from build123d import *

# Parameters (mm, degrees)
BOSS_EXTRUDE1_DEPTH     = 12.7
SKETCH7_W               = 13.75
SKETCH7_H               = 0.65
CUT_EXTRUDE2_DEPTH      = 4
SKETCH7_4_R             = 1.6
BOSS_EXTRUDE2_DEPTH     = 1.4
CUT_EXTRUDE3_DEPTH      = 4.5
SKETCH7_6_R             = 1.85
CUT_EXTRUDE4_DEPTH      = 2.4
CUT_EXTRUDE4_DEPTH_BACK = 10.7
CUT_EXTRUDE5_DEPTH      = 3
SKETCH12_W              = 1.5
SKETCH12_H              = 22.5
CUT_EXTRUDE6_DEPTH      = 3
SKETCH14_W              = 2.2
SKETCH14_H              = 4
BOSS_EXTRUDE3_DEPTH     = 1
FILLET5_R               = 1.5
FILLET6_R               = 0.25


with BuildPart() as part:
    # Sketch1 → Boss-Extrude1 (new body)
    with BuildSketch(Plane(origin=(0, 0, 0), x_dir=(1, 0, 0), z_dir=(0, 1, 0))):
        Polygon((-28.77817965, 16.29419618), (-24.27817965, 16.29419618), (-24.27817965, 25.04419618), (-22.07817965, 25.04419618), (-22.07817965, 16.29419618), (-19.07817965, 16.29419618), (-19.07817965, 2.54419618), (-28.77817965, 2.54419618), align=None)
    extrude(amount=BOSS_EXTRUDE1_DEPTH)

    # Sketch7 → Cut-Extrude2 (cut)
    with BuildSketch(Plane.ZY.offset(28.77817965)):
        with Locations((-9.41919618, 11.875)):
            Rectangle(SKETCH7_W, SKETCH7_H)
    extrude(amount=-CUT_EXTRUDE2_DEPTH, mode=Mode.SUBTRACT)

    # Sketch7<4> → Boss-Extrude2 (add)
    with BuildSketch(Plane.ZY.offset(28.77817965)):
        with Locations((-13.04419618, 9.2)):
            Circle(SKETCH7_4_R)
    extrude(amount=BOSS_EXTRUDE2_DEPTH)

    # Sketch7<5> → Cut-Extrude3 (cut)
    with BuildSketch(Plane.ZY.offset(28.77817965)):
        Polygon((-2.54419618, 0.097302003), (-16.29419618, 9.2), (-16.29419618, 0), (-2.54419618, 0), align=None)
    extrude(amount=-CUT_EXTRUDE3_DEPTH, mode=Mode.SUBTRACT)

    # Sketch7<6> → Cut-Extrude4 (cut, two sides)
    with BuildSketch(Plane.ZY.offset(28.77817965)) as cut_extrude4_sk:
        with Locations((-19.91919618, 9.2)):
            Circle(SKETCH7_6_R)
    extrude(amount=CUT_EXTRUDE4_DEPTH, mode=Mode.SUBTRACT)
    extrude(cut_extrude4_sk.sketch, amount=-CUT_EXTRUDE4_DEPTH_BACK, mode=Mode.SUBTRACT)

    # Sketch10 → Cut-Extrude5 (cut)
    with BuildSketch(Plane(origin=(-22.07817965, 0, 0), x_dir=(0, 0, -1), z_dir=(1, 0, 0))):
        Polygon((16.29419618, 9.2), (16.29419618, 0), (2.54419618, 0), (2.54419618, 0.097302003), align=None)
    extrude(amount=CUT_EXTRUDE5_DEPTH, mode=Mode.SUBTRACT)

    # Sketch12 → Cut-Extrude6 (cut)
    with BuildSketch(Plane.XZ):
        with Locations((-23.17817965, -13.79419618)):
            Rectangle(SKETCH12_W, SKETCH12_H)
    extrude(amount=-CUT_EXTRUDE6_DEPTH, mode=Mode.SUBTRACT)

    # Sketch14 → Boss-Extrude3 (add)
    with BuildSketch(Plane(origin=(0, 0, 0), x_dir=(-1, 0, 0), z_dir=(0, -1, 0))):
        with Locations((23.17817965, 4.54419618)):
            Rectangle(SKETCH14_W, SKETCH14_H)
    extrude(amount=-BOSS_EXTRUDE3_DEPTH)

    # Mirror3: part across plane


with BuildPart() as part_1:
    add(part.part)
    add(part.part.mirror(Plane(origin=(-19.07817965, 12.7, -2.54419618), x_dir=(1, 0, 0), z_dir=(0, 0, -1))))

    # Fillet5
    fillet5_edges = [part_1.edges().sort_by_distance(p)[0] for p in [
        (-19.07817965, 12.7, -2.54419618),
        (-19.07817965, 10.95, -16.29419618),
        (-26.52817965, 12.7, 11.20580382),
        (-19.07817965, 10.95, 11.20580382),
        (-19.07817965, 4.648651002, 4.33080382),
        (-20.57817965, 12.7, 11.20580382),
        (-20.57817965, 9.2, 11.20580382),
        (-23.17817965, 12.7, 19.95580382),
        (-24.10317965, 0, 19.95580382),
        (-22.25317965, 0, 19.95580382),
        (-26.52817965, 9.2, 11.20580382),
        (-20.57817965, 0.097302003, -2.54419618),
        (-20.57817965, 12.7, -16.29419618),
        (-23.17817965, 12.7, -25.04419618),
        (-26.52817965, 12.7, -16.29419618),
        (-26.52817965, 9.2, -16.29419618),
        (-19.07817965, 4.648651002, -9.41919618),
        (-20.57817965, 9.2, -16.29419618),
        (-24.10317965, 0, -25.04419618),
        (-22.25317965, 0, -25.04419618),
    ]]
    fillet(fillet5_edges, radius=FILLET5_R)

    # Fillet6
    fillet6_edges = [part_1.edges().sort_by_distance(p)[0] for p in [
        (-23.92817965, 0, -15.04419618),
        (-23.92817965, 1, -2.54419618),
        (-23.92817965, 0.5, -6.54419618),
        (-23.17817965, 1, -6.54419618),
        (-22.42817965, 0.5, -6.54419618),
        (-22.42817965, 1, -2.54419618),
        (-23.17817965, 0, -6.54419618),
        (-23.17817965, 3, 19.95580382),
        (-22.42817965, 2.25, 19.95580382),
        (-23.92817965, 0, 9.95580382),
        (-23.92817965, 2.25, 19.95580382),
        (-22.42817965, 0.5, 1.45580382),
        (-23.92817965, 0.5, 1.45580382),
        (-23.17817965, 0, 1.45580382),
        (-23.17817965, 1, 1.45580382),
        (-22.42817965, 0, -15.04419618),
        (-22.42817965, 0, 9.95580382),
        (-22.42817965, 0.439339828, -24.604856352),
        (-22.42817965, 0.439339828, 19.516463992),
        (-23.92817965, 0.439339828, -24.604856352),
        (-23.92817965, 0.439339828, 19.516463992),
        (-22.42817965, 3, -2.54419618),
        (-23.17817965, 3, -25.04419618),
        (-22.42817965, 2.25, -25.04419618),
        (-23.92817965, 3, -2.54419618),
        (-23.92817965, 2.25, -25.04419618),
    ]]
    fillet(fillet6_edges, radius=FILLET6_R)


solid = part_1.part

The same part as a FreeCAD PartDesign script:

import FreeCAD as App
import Part
import Sketcher
Q = App.Units.Quantity


def edges_at(feature, points):
    """Names of the edges that pass closest to the given points."""
    edges = feature.Shape.Edges
    near = lambda p: min(range(len(edges)), key=lambda i: edges[i].distToShape(Part.Vertex(*p))[0])
    return sorted({f"Edge{near(p) + 1}" for p in points})

doc = App.newDocument("Part")
body = doc.addObject("PartDesign::Body", "Body")

sketch1 = doc.addObject("Sketcher::SketchObject", "Sketch")
body.addObject(sketch1)
sketch1.AttachmentSupport = (doc.XZ_Plane, [""])
sketch1.MapMode = "FlatFace"
sketch1.addGeometry([
    Part.LineSegment(App.Vector(-24.3, -16.3, 0), App.Vector(-28.8, -16.3, 0)),
    Part.LineSegment(App.Vector(-28.8, -16.3, 0), App.Vector(-28.8, -2.5, 0)),
    Part.LineSegment(App.Vector(-28.8, -2.5, 0), App.Vector(-19.1, -2.5, 0)),
    Part.LineSegment(App.Vector(-19.1, -2.5, 0), App.Vector(-19.1, -16.3, 0)),
    Part.LineSegment(App.Vector(-19.1, -16.3, 0), App.Vector(-22.1, -16.3, 0)),
    Part.LineSegment(App.Vector(-22.1, -16.3, 0), App.Vector(-22.1, -25, 0)),
    Part.LineSegment(App.Vector(-22.1, -25, 0), App.Vector(-24.3, -25, 0)),
    Part.LineSegment(App.Vector(-24.3, -25, 0), App.Vector(-24.3, -16.3, 0)),
], False)
sketch1.addConstraint([
    Sketcher.Constraint("Coincident", 0, 2, 1, 1),
    Sketcher.Constraint("Coincident", 1, 2, 2, 1),
    Sketcher.Constraint("Coincident", 2, 2, 3, 1),
    Sketcher.Constraint("Coincident", 3, 2, 4, 1),
    Sketcher.Constraint("Coincident", 4, 2, 5, 1),
    Sketcher.Constraint("Coincident", 5, 2, 6, 1),
    Sketcher.Constraint("Coincident", 6, 2, 7, 1),
    Sketcher.Constraint("Coincident", 7, 2, 0, 1),
    Sketcher.Constraint("Horizontal", 0),
    Sketcher.Constraint("Vertical", 1),
    Sketcher.Constraint("Horizontal", 2),
    Sketcher.Constraint("Vertical", 3),
    Sketcher.Constraint("Horizontal", 4),
    Sketcher.Constraint("Vertical", 5),
    Sketcher.Constraint("Horizontal", 6),
    Sketcher.Constraint("Vertical", 7),
    Sketcher.Constraint("Horizontal", 0, 2, 3, 2),
    Sketcher.Constraint("DistanceX", 4, 2, 4, 1, Q("3 mm")),
    Sketcher.Constraint("DistanceX", 0, 2, 0, 1, Q("4.5 mm")),
    Sketcher.Constraint("DistanceX", 2, 1, 2, 2, Q("9.7 mm")),
    Sketcher.Constraint("DistanceY", 1, 1, 1, 2, Q("13.75 mm")),
    Sketcher.Constraint("DistanceY", 5, 2, 5, 1, Q("8.75 mm")),
    Sketcher.Constraint("DistanceX", 0, 2, -1, 1, Q("28.77818 mm")),
    Sketcher.Constraint("DistanceY", 0, 2, -1, 1, Q("16.294196 mm")),
])
pad1 = doc.addObject("PartDesign::Pad", "Pad")
body.addObject(pad1)
pad1.Profile = sketch1
pad1.Length = 12.7
pad1.Reversed = True

sketch2 = doc.addObject("Sketcher::SketchObject", "Sketch001")
body.addObject(sketch2)
sketch2.AttachmentSupport = (doc.YZ_Plane, [""])
sketch2.MapMode = "FlatFace"
sketch2.AttachmentOffset = App.Placement(App.Vector(0, 0, -28.77818), App.Rotation())
sketch2.addGeometry([
    Part.LineSegment(App.Vector(12.2, -16.3, 0), App.Vector(11.6, -16.3, 0)),
    Part.LineSegment(App.Vector(11.6, -16.3, 0), App.Vector(11.6, -2.5, 0)),
    Part.LineSegment(App.Vector(11.6, -2.5, 0), App.Vector(12.2, -2.5, 0)),
    Part.LineSegment(App.Vector(12.2, -2.5, 0), App.Vector(12.2, -16.3, 0)),
], False)
sketch2.addConstraint([
    Sketcher.Constraint("Coincident", 0, 2, 1, 1),
    Sketcher.Constraint("Coincident", 1, 2, 2, 1),
    Sketcher.Constraint("Coincident", 2, 2, 3, 1),
    Sketcher.Constraint("Coincident", 3, 2, 0, 1),
    Sketcher.Constraint("Horizontal", 0),
    Sketcher.Constraint("Vertical", 1),
    Sketcher.Constraint("Horizontal", 2),
    Sketcher.Constraint("Vertical", 3),
    Sketcher.Constraint("DistanceX", 0, 2, 0, 1, Q("0.65 mm")),
    Sketcher.Constraint("DistanceY", 1, 1, 1, 2, Q("13.75 mm")),
    Sketcher.Constraint("DistanceX", -1, 1, 2, 2, Q("12.2 mm")),
    Sketcher.Constraint("DistanceY", 0, 2, -1, 1, Q("16.294196 mm")),
])
pocket1 = doc.addObject("PartDesign::Pocket", "Pocket")
body.addObject(pocket1)
pocket1.Profile = sketch2
pocket1.Length = 4
pocket1.Reversed = True

sketch3 = doc.addObject("Sketcher::SketchObject", "Sketch002")
body.addObject(sketch3)
sketch3.AttachmentSupport = (doc.YZ_Plane, [""])
sketch3.MapMode = "FlatFace"
sketch3.AttachmentOffset = App.Placement(App.Vector(0, 0, -28.77818), App.Rotation())
sketch3.addGeometry(Part.Circle(App.Vector(9.2, -13, 0), App.Vector(0, 0, 1), 1.6), False)
sketch3.addConstraint([
    Sketcher.Constraint("Diameter", 0, Q("3.2 mm")),
    Sketcher.Constraint("DistanceX", -1, 1, 0, 3, Q("9.2 mm")),
    Sketcher.Constraint("DistanceY", 0, 3, -1, 1, Q("13.044196 mm")),
])
pad2 = doc.addObject("PartDesign::Pad", "Pad001")
body.addObject(pad2)
pad2.Profile = sketch3
pad2.Length = 1.4
pad2.Reversed = True

sketch4 = doc.addObject("Sketcher::SketchObject", "Sketch003")
body.addObject(sketch4)
sketch4.AttachmentSupport = (doc.YZ_Plane, [""])
sketch4.MapMode = "FlatFace"
sketch4.AttachmentOffset = App.Placement(App.Vector(0, 0, -28.77818), App.Rotation())
sketch4.addGeometry([
    Part.LineSegment(App.Vector(0.1, -2.54, 0), App.Vector(9.2, -16.29, 0)),
    Part.LineSegment(App.Vector(9.2, -16.29, 0), App.Vector(0, -16.29, 0)),
    Part.LineSegment(App.Vector(0, -16.29, 0), App.Vector(0, -2.54, 0)),
    Part.LineSegment(App.Vector(0, -2.54, 0), App.Vector(0.1, -2.54, 0)),
], False)
sketch4.addConstraint([
    Sketcher.Constraint("Coincident", 0, 2, 1, 1),
    Sketcher.Constraint("Coincident", 1, 2, 2, 1),
    Sketcher.Constraint("Coincident", 2, 2, 3, 1),
    Sketcher.Constraint("Coincident", 3, 2, 0, 1),
    Sketcher.Constraint("Horizontal", 1),
    Sketcher.Constraint("Vertical", 2),
    Sketcher.Constraint("Horizontal", 3),
    Sketcher.Constraint("PointOnObject", 1, 2, -2),
    Sketcher.Constraint("DistanceX", 1, 2, 1, 1, Q("9.2 mm")),
    Sketcher.Constraint("DistanceY", 2, 1, 2, 2, Q("13.75 mm")),
    Sketcher.Constraint("DistanceX", 3, 1, 3, 2, Q("0.097302 mm")),
    Sketcher.Constraint("DistanceY", 0, 2, -1, 1, Q("16.294196 mm")),
])
pocket2 = doc.addObject("PartDesign::Pocket", "Pocket001")
body.addObject(pocket2)
pocket2.Profile = sketch4
pocket2.Length = 4.5
pocket2.Reversed = True

sketch5 = doc.addObject("Sketcher::SketchObject", "Sketch004")
body.addObject(sketch5)
sketch5.AttachmentSupport = (doc.YZ_Plane, [""])
sketch5.MapMode = "FlatFace"
sketch5.AttachmentOffset = App.Placement(App.Vector(0, 0, -28.77818), App.Rotation())
sketch5.addGeometry(Part.Circle(App.Vector(9.2, -19.9, 0), App.Vector(0, 0, 1), 1.9), False)
sketch5.addConstraint([
    Sketcher.Constraint("Diameter", 0, Q("3.7 mm")),
    Sketcher.Constraint("DistanceX", -1, 1, 0, 3, Q("9.2 mm")),
    Sketcher.Constraint("DistanceY", 0, 3, -1, 1, Q("19.919196 mm")),
])
pocket3 = doc.addObject("PartDesign::Pocket", "Pocket002")
body.addObject(pocket3)
pocket3.Profile = sketch5
pocket3.Type = "ThroughAll"
pocket3.Midplane = True

sketch6 = doc.addObject("Sketcher::SketchObject", "Sketch005")
body.addObject(sketch6)
sketch6.AttachmentSupport = (doc.YZ_Plane, [""])
sketch6.MapMode = "FlatFace"
sketch6.AttachmentOffset = App.Placement(App.Vector(0, 0, -22.07818), App.Rotation())
sketch6.addGeometry([
    Part.LineSegment(App.Vector(0, -16.29, 0), App.Vector(9.2, -16.29, 0)),
    Part.LineSegment(App.Vector(9.2, -16.29, 0), App.Vector(0.1, -2.54, 0)),
    Part.LineSegment(App.Vector(0.1, -2.54, 0), App.Vector(0, -2.54, 0)),
    Part.LineSegment(App.Vector(0, -2.54, 0), App.Vector(0, -16.29, 0)),
], False)
sketch6.addConstraint([
    Sketcher.Constraint("Coincident", 0, 2, 1, 1),
    Sketcher.Constraint("Coincident", 1, 2, 2, 1),
    Sketcher.Constraint("Coincident", 2, 2, 3, 1),
    Sketcher.Constraint("Coincident", 3, 2, 0, 1),
    Sketcher.Constraint("Horizontal", 0),
    Sketcher.Constraint("Horizontal", 2),
    Sketcher.Constraint("Vertical", 3),
    Sketcher.Constraint("PointOnObject", 2, 2, -2),
    Sketcher.Constraint("DistanceX", 0, 1, 0, 2, Q("9.2 mm")),
    Sketcher.Constraint("DistanceY", 3, 2, 3, 1, Q("13.75 mm")),
    Sketcher.Constraint("DistanceX", 2, 2, 2, 1, Q("0.097302 mm")),
    Sketcher.Constraint("DistanceY", 0, 2, -1, 1, Q("16.294196 mm")),
])
pocket4 = doc.addObject("PartDesign::Pocket", "Pocket003")
body.addObject(pocket4)
pocket4.Profile = sketch6
pocket4.Length = 3
pocket4.Reversed = True

sketch7 = doc.addObject("Sketcher::SketchObject", "Sketch006")
body.addObject(sketch7)
sketch7.AttachmentSupport = (doc.XZ_Plane, [""])
sketch7.MapMode = "FlatFace"
sketch7.addGeometry([
    Part.LineSegment(App.Vector(-23.9, -2.5, 0), App.Vector(-23.9, -25, 0)),
    Part.LineSegment(App.Vector(-23.9, -25, 0), App.Vector(-22.4, -25, 0)),
    Part.LineSegment(App.Vector(-22.4, -25, 0), App.Vector(-22.4, -2.5, 0)),
    Part.LineSegment(App.Vector(-22.4, -2.5, 0), App.Vector(-23.9, -2.5, 0)),
], False)
sketch7.addConstraint([
    Sketcher.Constraint("Coincident", 0, 2, 1, 1),
    Sketcher.Constraint("Coincident", 1, 2, 2, 1),
    Sketcher.Constraint("Coincident", 2, 2, 3, 1),
    Sketcher.Constraint("Coincident", 3, 2, 0, 1),
    Sketcher.Constraint("Vertical", 0),
    Sketcher.Constraint("Horizontal", 1),
    Sketcher.Constraint("Vertical", 2),
    Sketcher.Constraint("Horizontal", 3),
    Sketcher.Constraint("DistanceX", 1, 1, 1, 2, Q("1.5 mm")),
    Sketcher.Constraint("DistanceY", 0, 2, 0, 1, Q("22.5 mm")),
    Sketcher.Constraint("DistanceX", 0, 2, -1, 1, Q("23.92818 mm")),
    Sketcher.Constraint("DistanceY", 0, 2, -1, 1, Q("25.044196 mm")),
])
pocket5 = doc.addObject("PartDesign::Pocket", "Pocket004")
body.addObject(pocket5)
pocket5.Profile = sketch7
pocket5.Length = 3

sketch8 = doc.addObject("Sketcher::SketchObject", "Sketch007")
body.addObject(sketch8)
sketch8.AttachmentSupport = (doc.XZ_Plane, [""])
sketch8.MapMode = "FlatFace"
sketch8.addGeometry([
    Part.LineSegment(App.Vector(-22.1, -6.5, 0), App.Vector(-22.1, -2.5, 0)),
    Part.LineSegment(App.Vector(-22.1, -2.5, 0), App.Vector(-24.3, -2.5, 0)),
    Part.LineSegment(App.Vector(-24.3, -2.5, 0), App.Vector(-24.3, -6.5, 0)),
    Part.LineSegment(App.Vector(-24.3, -6.5, 0), App.Vector(-22.1, -6.5, 0)),
], False)
sketch8.addConstraint([
    Sketcher.Constraint("Coincident", 0, 2, 1, 1),
    Sketcher.Constraint("Coincident", 1, 2, 2, 1),
    Sketcher.Constraint("Coincident", 2, 2, 3, 1),
    Sketcher.Constraint("Coincident", 3, 2, 0, 1),
    Sketcher.Constraint("Vertical", 0),
    Sketcher.Constraint("Horizontal", 1),
    Sketcher.Constraint("Vertical", 2),
    Sketcher.Constraint("Horizontal", 3),
    Sketcher.Constraint("DistanceY", 0, 1, 0, 2, Q("4 mm")),
    Sketcher.Constraint("DistanceX", 1, 2, 1, 1, Q("2.2 mm")),
    Sketcher.Constraint("DistanceX", 0, 2, -1, 1, Q("22.07818 mm")),
    Sketcher.Constraint("DistanceY", 0, 2, -1, 1, Q("2.544196 mm")),
])
pad3 = doc.addObject("PartDesign::Pad", "Pad002")
body.addObject(pad3)
pad3.Profile = sketch8
pad3.Length = 1
pad3.Reversed = True
body2 = doc.addObject("PartDesign::Body", "Body001")
doc.recompute()

body2.BaseFeature = body
doc.recompute()

mirroring = doc.addObject("Part::Mirroring", "Mirroring")
mirroring.Source = body
mirroring.Base = App.Vector(-19.07818, 12.7, -2.544196)
mirroring.Normal = App.Vector(0, 0, -1)
body3 = doc.addObject("PartDesign::Body", "Body002")
body3.BaseFeature = mirroring
boolean = doc.addObject("PartDesign::Boolean", "Boolean")
body2.addObject(boolean)
boolean.Type = "Fuse"
boolean.addObjects([body3])
doc.recompute()

fillet = doc.addObject("PartDesign::Fillet", "Fillet")
body2.addObject(fillet)
fillet.Base = (boolean, edges_at(boolean, [
    (-19.078, 12.7, -2.544),
    (-19.078, 10.95, -16.294),
    (-26.528, 12.7, 11.206),
    (-19.078, 10.95, 11.206),
    (-19.078, 4.649, 4.331),
    (-20.578, 12.7, 11.206),
    (-20.578, 9.2, 11.206),
    (-23.178, 12.7, 19.956),
    (-24.103, 0, 19.956),
    (-22.253, 0, 19.956),
    (-26.528, 9.2, 11.206),
    (-20.578, 0.097, -2.544),
    (-20.578, 12.7, -16.294),
    (-23.178, 12.7, -25.044),
    (-26.528, 12.7, -16.294),
    (-26.528, 9.2, -16.294),
    (-19.078, 4.649, -9.419),
    (-20.578, 9.2, -16.294),
    (-24.103, 0, -25.044),
    (-22.253, 0, -25.044),
]))
fillet.Radius = 1.5
doc.recompute()

fillet2 = doc.addObject("PartDesign::Fillet", "Fillet001")
body2.addObject(fillet2)
fillet2.Base = (fillet, edges_at(fillet, [
    (-23.928, 0, -15.044),
    (-23.928, 1, -2.544),
    (-23.928, 0.5, -6.544),
    (-23.178, 1, -6.544),
    (-22.428, 0.5, -6.544),
    (-22.428, 1, -2.544),
    (-23.178, 0, -6.544),
    (-23.178, 3, 19.956),
    (-22.428, 2.25, 19.956),
    (-23.928, 0, 9.956),
    (-23.928, 2.25, 19.956),
    (-22.428, 0.5, 1.456),
    (-23.928, 0.5, 1.456),
    (-23.178, 0, 1.456),
    (-23.178, 1, 1.456),
    (-22.428, 0, -15.044),
    (-22.428, 0, 9.956),
    (-22.428, 0.439, -24.605),
    (-22.428, 0.439, 19.516),
    (-23.928, 0.439, -24.605),
    (-23.928, 0.439, 19.516),
    (-22.428, 3, -2.544),
    (-23.178, 3, -25.044),
    (-22.428, 2.25, -25.044),
    (-23.928, 3, -2.544),
    (-23.928, 2.25, -25.044),
]))
fillet2.Radius = 0.25
mirroring.Visibility = False

doc.recompute()
